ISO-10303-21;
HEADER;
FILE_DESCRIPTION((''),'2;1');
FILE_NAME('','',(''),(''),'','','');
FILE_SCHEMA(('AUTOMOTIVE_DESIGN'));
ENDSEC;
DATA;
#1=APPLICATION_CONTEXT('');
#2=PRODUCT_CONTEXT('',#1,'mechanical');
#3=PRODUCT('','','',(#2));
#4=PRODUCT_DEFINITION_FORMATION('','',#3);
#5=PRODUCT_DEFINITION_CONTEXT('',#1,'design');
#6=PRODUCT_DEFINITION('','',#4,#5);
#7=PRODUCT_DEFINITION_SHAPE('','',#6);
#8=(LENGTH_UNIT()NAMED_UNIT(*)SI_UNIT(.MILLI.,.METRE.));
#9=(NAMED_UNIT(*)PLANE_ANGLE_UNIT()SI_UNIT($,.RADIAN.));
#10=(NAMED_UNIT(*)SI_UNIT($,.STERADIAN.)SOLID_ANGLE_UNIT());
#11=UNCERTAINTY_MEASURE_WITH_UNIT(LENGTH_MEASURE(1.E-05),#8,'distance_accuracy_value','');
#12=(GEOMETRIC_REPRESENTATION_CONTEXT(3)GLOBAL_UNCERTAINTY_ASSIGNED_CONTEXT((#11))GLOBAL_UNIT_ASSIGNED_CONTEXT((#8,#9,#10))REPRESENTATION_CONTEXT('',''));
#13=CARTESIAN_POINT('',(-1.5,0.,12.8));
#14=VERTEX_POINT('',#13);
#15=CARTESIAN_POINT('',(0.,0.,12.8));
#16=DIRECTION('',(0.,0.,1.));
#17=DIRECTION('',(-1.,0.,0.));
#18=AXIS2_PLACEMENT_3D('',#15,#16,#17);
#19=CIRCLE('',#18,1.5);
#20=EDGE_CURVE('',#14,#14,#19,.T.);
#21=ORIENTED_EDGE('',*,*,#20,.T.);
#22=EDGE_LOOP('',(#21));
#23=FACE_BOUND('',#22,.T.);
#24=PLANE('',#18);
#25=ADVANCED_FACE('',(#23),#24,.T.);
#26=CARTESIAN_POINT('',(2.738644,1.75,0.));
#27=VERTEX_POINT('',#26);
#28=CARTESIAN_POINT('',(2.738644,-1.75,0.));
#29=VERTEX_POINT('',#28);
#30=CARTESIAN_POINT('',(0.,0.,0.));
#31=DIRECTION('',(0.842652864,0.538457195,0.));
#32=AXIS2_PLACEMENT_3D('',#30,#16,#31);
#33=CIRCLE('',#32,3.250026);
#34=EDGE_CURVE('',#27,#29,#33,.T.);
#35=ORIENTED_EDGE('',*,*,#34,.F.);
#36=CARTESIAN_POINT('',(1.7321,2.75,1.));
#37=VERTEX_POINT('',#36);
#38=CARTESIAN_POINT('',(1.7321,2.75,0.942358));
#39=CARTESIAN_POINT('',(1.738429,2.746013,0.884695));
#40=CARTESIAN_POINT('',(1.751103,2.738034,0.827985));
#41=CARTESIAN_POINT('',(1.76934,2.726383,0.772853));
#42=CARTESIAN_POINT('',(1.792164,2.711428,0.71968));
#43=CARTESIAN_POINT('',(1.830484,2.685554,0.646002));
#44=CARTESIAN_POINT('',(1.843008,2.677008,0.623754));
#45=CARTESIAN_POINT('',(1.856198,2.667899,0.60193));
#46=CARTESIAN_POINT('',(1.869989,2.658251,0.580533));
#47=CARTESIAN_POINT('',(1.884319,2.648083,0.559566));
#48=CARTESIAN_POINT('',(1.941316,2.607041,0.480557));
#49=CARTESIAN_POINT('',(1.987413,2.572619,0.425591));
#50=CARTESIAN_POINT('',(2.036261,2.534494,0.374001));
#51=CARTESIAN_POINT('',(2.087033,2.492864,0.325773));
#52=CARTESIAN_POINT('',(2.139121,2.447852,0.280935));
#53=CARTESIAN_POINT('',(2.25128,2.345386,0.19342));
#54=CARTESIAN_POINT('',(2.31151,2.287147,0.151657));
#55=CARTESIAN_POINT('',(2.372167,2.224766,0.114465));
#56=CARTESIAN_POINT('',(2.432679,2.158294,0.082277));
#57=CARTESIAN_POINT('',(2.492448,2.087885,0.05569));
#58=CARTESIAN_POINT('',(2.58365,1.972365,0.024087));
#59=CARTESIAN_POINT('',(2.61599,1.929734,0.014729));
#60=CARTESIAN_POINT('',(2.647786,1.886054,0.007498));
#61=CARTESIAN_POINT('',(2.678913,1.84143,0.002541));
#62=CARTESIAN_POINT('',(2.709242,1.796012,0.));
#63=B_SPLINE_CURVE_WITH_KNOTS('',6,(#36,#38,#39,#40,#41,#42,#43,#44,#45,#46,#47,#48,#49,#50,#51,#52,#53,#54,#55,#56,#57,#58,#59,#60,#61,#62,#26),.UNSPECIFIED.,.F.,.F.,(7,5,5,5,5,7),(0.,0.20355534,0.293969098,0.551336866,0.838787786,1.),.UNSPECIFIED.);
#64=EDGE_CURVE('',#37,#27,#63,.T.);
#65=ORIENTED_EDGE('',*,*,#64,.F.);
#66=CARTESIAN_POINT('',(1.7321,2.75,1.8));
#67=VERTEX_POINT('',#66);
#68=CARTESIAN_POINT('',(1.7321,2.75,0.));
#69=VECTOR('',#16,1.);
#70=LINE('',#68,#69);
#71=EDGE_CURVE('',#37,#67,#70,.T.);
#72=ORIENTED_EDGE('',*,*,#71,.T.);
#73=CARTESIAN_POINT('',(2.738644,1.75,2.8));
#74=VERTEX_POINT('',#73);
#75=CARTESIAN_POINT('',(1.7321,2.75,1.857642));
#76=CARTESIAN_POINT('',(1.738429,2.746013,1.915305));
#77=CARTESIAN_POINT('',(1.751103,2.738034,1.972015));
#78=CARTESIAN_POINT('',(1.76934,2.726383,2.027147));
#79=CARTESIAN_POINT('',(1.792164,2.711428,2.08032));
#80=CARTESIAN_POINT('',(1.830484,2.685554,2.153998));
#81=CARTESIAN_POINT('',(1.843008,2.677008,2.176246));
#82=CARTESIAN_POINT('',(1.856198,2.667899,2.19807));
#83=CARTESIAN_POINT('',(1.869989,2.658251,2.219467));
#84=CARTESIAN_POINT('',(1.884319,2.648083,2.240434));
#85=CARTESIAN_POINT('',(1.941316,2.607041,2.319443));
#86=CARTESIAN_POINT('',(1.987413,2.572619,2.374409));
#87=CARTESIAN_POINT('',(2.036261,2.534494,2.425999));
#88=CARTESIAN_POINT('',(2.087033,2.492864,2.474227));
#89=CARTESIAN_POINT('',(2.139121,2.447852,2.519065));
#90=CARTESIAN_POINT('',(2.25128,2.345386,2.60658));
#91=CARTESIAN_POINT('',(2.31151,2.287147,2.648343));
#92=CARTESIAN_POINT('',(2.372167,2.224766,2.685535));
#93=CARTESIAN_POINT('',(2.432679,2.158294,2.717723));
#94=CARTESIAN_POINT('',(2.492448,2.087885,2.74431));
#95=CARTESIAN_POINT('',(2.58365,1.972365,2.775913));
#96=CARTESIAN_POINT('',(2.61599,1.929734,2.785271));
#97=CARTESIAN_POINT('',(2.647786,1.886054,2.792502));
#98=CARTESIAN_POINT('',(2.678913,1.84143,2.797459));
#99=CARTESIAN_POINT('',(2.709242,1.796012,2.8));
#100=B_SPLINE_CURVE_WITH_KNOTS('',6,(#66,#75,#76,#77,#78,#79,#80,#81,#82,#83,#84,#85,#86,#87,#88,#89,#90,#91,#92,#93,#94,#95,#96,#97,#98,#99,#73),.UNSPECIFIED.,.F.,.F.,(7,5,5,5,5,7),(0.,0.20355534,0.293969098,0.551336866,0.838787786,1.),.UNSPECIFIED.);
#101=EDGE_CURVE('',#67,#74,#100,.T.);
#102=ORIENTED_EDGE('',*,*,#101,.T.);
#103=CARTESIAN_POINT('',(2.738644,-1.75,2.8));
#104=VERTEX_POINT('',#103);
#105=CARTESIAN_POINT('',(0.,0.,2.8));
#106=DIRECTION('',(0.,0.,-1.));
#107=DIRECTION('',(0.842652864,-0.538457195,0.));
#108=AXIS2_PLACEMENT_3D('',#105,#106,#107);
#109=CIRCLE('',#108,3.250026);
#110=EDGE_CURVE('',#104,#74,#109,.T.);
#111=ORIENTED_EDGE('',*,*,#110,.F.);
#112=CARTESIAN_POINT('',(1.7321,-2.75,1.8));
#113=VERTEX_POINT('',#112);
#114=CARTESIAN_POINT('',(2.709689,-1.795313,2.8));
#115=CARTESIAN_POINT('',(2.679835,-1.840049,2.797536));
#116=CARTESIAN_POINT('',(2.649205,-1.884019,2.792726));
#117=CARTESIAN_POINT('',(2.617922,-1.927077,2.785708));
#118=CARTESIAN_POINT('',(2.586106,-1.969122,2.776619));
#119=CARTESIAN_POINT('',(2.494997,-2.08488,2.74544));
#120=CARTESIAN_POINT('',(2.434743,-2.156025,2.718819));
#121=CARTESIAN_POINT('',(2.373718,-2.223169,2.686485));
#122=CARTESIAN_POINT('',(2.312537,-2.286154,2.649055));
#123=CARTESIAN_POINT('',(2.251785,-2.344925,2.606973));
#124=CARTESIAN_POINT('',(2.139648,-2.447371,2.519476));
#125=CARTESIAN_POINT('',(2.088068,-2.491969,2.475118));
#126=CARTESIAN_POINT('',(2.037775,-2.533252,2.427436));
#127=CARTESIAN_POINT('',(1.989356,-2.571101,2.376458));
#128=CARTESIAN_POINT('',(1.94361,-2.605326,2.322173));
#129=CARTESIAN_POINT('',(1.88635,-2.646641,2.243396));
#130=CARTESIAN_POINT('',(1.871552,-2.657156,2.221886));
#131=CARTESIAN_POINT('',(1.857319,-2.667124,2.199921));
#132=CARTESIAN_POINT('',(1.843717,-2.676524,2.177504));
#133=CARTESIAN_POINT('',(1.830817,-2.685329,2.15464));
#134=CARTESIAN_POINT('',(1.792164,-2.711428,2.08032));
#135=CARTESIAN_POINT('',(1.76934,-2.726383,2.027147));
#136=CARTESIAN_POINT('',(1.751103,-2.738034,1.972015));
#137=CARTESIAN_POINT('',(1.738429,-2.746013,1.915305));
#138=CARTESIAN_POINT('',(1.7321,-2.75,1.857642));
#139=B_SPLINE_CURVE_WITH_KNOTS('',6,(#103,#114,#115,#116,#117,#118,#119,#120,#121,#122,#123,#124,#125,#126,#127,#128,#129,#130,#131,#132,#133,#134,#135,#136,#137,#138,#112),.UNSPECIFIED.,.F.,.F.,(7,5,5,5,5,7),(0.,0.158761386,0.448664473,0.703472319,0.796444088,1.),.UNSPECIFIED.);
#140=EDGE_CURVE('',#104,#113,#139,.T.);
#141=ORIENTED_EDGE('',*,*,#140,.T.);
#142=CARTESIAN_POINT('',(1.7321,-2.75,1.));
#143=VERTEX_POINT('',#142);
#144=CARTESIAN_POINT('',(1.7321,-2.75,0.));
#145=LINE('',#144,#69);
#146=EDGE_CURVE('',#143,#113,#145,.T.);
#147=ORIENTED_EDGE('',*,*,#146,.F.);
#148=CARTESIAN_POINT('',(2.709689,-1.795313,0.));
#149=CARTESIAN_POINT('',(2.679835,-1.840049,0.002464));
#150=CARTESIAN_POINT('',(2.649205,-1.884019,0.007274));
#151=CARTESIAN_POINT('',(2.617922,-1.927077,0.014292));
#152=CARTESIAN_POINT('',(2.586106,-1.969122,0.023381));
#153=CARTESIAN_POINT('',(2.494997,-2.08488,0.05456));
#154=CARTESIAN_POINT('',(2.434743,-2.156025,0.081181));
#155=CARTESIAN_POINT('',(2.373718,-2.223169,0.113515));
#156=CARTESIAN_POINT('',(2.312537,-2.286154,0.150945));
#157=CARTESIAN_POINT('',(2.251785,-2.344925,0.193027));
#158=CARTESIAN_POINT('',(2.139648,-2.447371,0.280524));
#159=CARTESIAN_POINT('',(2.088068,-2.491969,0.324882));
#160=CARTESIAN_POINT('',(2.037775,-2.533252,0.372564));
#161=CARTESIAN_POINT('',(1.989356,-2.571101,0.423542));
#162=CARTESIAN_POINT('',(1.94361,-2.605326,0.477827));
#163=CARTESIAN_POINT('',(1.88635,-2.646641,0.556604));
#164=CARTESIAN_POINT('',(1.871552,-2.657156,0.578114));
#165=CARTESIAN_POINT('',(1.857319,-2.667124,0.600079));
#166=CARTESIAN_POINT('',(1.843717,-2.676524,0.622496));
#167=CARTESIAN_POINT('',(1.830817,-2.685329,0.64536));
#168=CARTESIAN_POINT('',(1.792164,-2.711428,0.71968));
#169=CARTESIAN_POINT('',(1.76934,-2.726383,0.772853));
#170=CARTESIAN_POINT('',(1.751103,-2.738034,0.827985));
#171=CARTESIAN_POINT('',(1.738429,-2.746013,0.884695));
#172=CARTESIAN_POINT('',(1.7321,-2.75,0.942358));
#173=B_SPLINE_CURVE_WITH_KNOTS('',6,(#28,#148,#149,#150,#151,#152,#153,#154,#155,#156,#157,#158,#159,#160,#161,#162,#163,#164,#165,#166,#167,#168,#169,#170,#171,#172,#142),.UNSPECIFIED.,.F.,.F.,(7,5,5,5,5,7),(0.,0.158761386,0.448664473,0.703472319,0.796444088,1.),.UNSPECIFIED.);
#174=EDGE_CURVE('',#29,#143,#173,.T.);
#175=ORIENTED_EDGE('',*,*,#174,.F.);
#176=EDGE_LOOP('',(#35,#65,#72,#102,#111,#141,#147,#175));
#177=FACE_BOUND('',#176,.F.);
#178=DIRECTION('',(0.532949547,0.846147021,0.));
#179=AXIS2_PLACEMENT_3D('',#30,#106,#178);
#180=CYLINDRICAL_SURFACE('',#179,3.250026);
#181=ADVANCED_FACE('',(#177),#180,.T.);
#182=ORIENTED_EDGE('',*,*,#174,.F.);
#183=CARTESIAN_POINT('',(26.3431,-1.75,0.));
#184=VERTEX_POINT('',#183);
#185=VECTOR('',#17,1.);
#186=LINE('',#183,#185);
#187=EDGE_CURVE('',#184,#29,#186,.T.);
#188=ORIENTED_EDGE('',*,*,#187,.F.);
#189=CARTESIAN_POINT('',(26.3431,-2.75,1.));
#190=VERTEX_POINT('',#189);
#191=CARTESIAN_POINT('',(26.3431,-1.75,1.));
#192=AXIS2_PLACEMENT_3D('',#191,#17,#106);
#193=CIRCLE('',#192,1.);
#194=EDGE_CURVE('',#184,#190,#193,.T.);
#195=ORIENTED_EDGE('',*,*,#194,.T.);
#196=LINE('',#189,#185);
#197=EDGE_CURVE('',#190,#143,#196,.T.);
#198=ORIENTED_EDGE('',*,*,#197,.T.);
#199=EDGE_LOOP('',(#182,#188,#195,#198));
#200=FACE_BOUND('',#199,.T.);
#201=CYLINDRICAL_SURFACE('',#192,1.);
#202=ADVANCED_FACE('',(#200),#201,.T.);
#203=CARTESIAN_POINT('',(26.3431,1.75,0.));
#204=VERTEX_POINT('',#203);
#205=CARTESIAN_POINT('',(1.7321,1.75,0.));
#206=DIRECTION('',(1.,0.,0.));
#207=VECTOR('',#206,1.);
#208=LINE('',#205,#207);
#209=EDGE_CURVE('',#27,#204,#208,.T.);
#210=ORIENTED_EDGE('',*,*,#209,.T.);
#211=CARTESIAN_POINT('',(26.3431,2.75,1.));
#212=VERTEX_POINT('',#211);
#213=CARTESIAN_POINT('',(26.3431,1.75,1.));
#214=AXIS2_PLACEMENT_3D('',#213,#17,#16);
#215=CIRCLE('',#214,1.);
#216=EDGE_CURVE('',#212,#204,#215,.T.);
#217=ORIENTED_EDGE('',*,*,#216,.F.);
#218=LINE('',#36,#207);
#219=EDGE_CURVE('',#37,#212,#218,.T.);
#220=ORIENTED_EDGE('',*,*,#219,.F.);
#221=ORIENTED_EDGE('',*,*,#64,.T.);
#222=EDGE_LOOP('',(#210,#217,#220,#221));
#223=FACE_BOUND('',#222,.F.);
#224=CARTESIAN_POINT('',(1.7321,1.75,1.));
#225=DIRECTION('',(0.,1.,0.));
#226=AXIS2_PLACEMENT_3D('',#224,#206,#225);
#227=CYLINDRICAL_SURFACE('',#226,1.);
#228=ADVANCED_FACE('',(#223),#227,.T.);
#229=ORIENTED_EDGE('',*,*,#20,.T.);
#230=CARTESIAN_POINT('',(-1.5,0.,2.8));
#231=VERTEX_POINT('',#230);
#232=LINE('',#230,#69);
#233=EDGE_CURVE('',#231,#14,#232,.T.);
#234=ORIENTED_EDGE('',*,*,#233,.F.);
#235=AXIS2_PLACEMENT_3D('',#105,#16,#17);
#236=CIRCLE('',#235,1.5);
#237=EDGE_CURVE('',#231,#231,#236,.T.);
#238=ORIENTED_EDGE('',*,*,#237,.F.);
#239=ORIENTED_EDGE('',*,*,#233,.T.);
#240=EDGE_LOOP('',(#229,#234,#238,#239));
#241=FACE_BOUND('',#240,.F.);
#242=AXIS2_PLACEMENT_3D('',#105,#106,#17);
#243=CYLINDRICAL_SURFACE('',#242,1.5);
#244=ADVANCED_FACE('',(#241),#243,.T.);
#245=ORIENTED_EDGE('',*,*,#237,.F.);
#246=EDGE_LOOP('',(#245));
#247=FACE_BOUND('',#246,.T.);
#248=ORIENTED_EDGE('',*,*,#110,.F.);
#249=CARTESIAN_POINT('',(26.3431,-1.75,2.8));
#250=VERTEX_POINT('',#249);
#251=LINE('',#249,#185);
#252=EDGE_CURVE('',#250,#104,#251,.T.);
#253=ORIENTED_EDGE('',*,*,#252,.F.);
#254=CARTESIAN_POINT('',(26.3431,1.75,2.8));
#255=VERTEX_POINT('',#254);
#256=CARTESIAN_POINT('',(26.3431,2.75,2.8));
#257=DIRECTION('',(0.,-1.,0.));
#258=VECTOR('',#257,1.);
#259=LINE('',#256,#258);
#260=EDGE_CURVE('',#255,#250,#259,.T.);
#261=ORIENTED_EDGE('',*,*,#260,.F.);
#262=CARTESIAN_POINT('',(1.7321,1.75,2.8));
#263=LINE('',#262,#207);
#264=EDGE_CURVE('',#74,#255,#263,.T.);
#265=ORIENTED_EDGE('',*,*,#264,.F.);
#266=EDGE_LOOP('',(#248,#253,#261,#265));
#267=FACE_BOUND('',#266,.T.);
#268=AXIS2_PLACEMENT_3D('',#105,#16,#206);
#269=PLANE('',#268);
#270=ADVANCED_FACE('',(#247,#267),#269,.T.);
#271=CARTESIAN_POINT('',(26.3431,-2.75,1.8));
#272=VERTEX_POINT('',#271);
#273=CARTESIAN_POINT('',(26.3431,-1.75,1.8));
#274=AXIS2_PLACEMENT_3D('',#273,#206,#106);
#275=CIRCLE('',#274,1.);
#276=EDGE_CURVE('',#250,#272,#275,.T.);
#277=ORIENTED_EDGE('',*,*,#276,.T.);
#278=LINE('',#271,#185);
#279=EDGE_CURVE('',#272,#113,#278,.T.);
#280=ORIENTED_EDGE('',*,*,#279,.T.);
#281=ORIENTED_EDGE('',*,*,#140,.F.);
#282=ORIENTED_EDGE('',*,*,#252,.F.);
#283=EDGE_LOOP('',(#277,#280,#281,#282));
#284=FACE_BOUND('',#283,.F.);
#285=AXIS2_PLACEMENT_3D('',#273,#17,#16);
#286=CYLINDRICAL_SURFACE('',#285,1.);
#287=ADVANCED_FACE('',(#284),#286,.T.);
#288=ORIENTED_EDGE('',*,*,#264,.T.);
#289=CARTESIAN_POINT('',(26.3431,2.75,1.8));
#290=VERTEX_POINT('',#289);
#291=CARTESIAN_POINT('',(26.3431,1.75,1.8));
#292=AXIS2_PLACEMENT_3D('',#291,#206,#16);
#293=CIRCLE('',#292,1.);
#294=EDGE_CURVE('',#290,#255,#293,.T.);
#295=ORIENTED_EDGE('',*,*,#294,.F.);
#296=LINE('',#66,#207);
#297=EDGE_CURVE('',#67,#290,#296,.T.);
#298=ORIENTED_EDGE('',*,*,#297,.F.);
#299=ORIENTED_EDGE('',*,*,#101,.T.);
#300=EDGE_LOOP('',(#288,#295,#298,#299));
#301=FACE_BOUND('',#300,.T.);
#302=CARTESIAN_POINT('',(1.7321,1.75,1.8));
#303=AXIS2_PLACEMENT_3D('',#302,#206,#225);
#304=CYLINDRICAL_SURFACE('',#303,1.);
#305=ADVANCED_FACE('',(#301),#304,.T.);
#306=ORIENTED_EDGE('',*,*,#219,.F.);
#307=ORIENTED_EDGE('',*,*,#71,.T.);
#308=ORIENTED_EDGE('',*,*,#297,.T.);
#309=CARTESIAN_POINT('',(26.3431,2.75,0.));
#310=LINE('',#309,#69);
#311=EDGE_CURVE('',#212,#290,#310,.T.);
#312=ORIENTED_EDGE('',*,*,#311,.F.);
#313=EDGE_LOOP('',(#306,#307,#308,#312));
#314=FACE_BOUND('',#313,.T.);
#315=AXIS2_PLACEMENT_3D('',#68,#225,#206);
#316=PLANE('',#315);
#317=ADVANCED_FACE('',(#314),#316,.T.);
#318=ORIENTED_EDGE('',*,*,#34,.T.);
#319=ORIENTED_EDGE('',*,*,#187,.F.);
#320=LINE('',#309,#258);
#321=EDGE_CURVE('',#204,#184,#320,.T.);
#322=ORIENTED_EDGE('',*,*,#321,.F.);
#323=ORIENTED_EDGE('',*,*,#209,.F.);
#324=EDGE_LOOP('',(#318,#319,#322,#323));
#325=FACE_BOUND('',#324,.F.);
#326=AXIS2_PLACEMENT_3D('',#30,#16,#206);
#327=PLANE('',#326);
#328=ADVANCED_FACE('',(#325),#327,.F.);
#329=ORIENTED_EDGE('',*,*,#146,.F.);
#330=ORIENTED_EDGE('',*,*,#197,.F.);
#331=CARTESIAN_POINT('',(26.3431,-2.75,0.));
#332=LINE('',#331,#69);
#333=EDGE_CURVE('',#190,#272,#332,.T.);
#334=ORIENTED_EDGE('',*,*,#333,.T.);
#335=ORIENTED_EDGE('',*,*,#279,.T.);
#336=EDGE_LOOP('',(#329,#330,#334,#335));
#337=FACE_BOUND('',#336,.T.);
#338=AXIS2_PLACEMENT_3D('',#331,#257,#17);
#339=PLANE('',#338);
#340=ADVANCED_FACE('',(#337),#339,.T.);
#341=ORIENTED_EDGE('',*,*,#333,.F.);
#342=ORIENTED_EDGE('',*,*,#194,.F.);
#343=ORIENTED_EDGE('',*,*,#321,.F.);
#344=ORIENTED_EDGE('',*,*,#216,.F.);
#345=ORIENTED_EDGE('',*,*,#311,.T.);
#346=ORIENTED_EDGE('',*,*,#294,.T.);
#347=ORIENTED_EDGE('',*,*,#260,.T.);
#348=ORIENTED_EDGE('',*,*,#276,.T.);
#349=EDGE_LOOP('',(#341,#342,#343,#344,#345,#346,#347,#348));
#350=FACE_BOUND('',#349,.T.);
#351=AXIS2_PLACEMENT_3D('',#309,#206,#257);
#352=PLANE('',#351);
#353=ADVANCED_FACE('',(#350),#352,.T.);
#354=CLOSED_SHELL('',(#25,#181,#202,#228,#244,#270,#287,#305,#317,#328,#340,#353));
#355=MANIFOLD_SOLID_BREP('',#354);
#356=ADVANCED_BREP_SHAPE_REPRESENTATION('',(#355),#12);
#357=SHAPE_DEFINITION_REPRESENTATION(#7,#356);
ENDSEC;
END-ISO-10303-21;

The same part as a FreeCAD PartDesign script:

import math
import FreeCAD as App
import Part
import Sketcher
from FreeCAD import Vector


def edges_at(feature, points):
    """Names of the edges that pass closest to the given points."""
    edges = feature.Shape.Edges
    near = lambda p: min(range(len(edges)), key=lambda i: edges[i].distToShape(Part.Vertex(*p))[0])
    return sorted({f"Edge{near(p) + 1}" for p in points})

doc = App.newDocument("Part")
params = doc.addObject("Spreadsheet::Sheet", "Params")
for row, (alias, value) in enumerate([
    ("sketch1_radius", "3.25 mm"),
    ("sketch1_height", "5.5 mm"),
    ("pad1_length", "2.8 mm"),
    ("sketch2_diameter", "3 mm"),
    ("pad2_length", "10 mm"),
    ("fillet_radius", "1 mm"),
], start=1):
    params.set(f"A{row}", alias)
    params.set(f"B{row}", "=" + value)
    params.setAlias(f"B{row}", alias)

body = doc.addObject("PartDesign::Body", "Body")

# Sketch on XY plane
sketch1 = body.newObject("Sketcher::SketchObject", "Sketch")
sketch1.AttachmentSupport = (doc.getObject("XY_Plane"), [""])
sketch1.MapMode = "FlatFace"
sketch1.addGeometry([
    Part.LineSegment(Vector(26.3, 2.8, 0), Vector(1.7, 2.8, 0)),
    Part.ArcOfCircle(Part.Circle(Vector(0, 0, 0), Vector(0, 0, 1), 3.3), math.radians(58), math.radians(302)),
    Part.LineSegment(Vector(1.7, -2.8, 0), Vector(26.3, -2.8, 0)),
    Part.LineSegment(Vector(26.3, -2.8, 0), Vector(26.3, 2.8, 0)),
], False)
sketch1.addConstraint([
    Sketcher.Constraint("Coincident", 0, 2, 1, 1),
    Sketcher.Constraint("Coincident", 1, 2, 2, 1),
    Sketcher.Constraint("Coincident", 2, 2, 3, 1),
    Sketcher.Constraint("Coincident", 3, 2, 0, 1),
    Sketcher.Constraint("Horizontal", 0),
    Sketcher.Constraint("Horizontal", 2),
    Sketcher.Constraint("Vertical", 3),
    Sketcher.Constraint("Coincident", 1, 3, -1, 1),
    Sketcher.Constraint("Vertical", 0, 2, 1, 2),
    Sketcher.Constraint("Radius", 1, 3.25),
    Sketcher.Constraint("DistanceY", 3, 1, 3, 2, 5.5),
    Sketcher.Constraint("DistanceX", 0, 2, 0, 1, 24.611),
])
sketch1.setExpression("Constraints[9]", "Params.sketch1_radius")
sketch1.setExpression("Constraints[10]", "Params.sketch1_height")
pad1 = body.newObject("PartDesign::Pad", "Pad")
pad1.Profile = sketch1
pad1.setExpression("Length", "Params.pad1_length")

# Sketch on XY plane
sketch2 = body.newObject("Sketcher::SketchObject", "Sketch001")
sketch2.AttachmentSupport = (doc.getObject("XY_Plane"), [""])
sketch2.MapMode = "FlatFace"
sketch2.AttachmentOffset = App.Placement(Vector(0, 0, 2.8), App.Rotation())
sketch2.addGeometry(Part.Circle(Vector(0, 0, 0), Vector(0, 0, 1), 1.5), False)
sketch2.addConstraint([
    Sketcher.Constraint("Coincident", 0, 3, -1, 1),
    Sketcher.Constraint("Diameter", 0, 3.0),
])
sketch2.setExpression("Constraints[1]", "Params.sketch2_diameter")
pad2 = body.newObject("PartDesign::Pad", "Pad001")
pad2.Profile = sketch2
pad2.setExpression("Length", "Params.pad2_length")
doc.recompute()

fillet = body.newObject("PartDesign::Fillet", "Fillet")
fillet.Base = (pad2, edges_at(pad2, [
    (14.038, -2.75, 2.8),
    (14.038, 2.75, 2.8),
    (14.038, 2.75, 0),
    (14.038, -2.75, 0),
]))
fillet.setExpression("Radius", "Params.fillet_radius")

doc.recompute()
